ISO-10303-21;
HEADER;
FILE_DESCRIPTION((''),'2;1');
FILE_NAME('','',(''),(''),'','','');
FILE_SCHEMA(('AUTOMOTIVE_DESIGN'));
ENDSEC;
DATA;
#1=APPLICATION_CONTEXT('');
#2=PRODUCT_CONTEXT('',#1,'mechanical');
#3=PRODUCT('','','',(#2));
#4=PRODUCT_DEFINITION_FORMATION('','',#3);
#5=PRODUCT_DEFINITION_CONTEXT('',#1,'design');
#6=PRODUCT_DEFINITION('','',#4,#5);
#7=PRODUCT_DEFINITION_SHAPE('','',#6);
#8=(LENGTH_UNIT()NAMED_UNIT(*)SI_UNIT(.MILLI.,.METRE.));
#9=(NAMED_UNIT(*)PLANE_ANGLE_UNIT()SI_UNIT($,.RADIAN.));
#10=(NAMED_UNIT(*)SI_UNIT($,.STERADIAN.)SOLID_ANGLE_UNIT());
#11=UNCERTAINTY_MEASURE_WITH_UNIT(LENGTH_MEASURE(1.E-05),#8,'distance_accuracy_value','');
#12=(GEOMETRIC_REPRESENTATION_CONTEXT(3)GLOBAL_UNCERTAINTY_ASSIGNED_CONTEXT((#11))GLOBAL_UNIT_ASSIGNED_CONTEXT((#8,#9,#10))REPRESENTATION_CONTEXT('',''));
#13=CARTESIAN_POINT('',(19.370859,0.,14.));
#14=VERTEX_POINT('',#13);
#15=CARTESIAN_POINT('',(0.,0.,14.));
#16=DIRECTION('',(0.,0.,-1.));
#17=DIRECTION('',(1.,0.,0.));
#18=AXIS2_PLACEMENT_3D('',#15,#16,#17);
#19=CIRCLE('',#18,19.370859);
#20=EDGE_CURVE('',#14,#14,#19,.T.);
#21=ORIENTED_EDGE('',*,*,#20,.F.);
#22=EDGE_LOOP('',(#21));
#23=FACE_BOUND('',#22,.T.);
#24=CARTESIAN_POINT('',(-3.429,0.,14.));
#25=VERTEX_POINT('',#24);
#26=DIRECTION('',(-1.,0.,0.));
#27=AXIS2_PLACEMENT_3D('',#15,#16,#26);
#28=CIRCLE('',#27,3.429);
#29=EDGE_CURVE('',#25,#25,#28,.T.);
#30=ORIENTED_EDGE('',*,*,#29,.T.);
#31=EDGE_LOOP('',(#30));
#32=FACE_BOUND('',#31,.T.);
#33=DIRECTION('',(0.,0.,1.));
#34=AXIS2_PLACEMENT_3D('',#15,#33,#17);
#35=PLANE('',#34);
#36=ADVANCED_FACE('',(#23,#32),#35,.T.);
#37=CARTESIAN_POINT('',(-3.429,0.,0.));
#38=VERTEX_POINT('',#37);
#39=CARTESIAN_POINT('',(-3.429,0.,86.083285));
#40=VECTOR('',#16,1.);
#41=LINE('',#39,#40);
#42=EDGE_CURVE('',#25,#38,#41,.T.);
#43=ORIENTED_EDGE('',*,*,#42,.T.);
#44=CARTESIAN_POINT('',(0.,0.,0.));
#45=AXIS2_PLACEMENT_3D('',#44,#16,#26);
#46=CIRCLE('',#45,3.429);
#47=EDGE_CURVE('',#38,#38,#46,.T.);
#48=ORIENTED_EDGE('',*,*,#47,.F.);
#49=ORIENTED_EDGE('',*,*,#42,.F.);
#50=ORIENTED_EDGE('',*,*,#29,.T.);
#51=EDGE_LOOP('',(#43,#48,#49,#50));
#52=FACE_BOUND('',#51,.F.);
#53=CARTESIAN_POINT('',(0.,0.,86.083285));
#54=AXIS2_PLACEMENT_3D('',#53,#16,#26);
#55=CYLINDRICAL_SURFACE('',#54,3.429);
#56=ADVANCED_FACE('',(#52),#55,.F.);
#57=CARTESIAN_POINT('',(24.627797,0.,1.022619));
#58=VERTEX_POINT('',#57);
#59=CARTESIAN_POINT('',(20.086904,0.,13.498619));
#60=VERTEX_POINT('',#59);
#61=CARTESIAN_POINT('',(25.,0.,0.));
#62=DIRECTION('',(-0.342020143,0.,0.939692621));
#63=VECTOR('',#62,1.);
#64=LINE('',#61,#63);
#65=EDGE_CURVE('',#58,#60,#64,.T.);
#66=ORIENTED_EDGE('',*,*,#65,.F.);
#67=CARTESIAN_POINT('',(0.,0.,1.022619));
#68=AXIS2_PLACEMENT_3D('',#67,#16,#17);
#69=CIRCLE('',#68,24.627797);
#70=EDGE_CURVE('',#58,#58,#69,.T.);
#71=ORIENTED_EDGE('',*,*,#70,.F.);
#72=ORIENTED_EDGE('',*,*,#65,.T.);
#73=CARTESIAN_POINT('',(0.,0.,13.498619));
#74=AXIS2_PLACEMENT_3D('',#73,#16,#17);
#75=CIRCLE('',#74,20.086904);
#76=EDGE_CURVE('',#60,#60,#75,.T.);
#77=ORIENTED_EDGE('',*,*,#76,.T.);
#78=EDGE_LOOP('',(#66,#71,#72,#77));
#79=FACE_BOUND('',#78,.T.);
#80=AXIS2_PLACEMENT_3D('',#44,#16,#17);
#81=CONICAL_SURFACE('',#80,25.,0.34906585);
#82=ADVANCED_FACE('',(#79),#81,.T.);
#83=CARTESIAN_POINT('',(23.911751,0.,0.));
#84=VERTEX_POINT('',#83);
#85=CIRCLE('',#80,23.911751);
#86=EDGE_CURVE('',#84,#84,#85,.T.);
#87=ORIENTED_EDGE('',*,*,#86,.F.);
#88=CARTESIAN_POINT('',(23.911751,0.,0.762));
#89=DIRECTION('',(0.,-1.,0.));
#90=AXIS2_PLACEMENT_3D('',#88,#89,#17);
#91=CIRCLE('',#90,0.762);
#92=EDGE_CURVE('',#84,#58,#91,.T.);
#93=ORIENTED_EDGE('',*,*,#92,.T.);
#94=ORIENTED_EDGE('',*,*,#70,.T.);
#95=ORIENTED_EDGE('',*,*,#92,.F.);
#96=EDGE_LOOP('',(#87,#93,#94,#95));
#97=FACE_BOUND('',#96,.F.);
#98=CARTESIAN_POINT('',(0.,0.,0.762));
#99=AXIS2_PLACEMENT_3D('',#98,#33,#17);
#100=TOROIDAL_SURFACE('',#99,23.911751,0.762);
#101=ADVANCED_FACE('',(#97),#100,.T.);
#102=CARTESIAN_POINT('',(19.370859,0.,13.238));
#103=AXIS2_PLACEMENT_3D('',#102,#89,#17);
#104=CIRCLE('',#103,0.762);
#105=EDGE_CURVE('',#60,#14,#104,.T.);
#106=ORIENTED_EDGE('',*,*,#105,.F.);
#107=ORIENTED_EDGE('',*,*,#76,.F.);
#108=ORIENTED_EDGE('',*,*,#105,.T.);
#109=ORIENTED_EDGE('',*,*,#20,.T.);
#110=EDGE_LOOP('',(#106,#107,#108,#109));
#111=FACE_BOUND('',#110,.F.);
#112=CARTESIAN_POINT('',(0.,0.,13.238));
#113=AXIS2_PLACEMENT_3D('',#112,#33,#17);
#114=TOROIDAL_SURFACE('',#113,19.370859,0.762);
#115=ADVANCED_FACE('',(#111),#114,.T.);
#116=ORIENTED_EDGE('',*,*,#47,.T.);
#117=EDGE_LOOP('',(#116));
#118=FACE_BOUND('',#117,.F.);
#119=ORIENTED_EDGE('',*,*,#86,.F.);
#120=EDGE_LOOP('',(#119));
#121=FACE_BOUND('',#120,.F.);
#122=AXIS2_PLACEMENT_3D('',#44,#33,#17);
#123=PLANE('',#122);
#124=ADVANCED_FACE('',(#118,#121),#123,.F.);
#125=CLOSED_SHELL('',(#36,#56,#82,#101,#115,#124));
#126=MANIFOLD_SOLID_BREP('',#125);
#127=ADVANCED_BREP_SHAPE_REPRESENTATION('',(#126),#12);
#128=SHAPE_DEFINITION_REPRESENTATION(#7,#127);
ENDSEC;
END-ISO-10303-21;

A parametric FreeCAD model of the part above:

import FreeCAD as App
import Part
import Sketcher


def edges_at(feature, points):
    """Names of the edges that pass closest to the given points."""
    edges = feature.Shape.Edges
    near = lambda p: min(range(len(edges)), key=lambda i: edges[i].distToShape(Part.Vertex(*p))[0])
    return sorted({f"Edge{near(p) + 1}" for p in points})

doc = App.newDocument("Part")
params = doc.addObject("Spreadsheet::Sheet", "Params")
for row, (alias, value) in enumerate([
    ("sketch1_diameter", "50 mm"),
    ("pad1_length", "14 mm"),
    ("pad1_taper", "-20 deg"),
    ("hole_diameter", "6.858 mm"),
    ("fillet_radius", "0.762 mm"),
], start=1):
    params.set(f"A{row}", alias)
    params.set(f"B{row}", "=" + value)
    params.setAlias(f"B{row}", alias)

body = doc.addObject("PartDesign::Body", "Body")

# Sketch on XY plane
sketch1 = body.newObject("Sketcher::SketchObject", "Sketch")
sketch1.AttachmentSupport = (doc.getObject("XY_Plane"), [""])
sketch1.MapMode = "FlatFace"
sketch1.addGeometry(Part.Circle(App.Vector(0, 0, 0), App.Vector(0, 0, 1), 25), False)
sketch1.addConstraint([
    Sketcher.Constraint("Coincident", 0, 3, -1, 1),
    Sketcher.Constraint("Diameter", 0, 50.0),
])
sketch1.setExpression("Constraints[1]", "Params.sketch1_diameter")
pad1 = body.newObject("PartDesign::Pad", "Pad")
pad1.Profile = sketch1
pad1.setExpression("Length", "Params.pad1_length")
pad1.setExpression("TaperAngle", "Params.pad1_taper")

# Sketch on XY plane
sketch2 = body.newObject("Sketcher::SketchObject", "Sketch001")
sketch2.AttachmentSupport = (doc.getObject("XY_Plane"), [""])
sketch2.MapMode = "FlatFace"
sketch2.AttachmentOffset = App.Placement(App.Vector(0, 0, 14), App.Rotation())
sketch2.addGeometry(Part.Circle(App.Vector(0, 0, 0), App.Vector(0, 0, 1), 3.4), False)
sketch2.addConstraint([
    Sketcher.Constraint("Coincident", 0, 3, -1, 1),
    Sketcher.Constraint("Diameter", 0, 6.858),
])
doc.recompute()
hole = body.newObject("PartDesign::Hole", "Hole")
hole.Profile = sketch2
hole.ThreadType = "None"
hole.setExpression("Diameter", "Params.hole_diameter")
hole.DepthType = "ThroughAll"
doc.recompute()

fillet = body.newObject("PartDesign::Fillet", "Fillet")
fillet.Base = (hole, edges_at(hole, [(-19.904, 0, 14), (-25, 0, 0)]))
fillet.setExpression("Radius", "Params.fillet_radius")

doc.recompute()
